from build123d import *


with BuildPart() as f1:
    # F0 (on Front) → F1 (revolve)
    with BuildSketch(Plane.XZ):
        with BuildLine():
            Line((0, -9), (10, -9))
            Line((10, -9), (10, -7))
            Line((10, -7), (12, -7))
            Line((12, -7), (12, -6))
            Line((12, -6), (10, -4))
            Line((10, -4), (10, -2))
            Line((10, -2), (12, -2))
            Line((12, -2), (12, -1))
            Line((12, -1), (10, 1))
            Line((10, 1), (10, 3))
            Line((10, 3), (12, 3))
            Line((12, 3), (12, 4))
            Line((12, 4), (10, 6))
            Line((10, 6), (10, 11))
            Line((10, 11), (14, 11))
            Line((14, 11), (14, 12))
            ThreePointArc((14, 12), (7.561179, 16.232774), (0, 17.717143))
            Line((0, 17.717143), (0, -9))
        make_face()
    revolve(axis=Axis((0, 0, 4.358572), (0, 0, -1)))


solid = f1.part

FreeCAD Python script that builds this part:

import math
import FreeCAD as App
import Part
import Sketcher
Q = App.Units.Quantity

doc = App.newDocument("Part")
body = doc.addObject("PartDesign::Body", "Body")

sketch1 = body.newObject("Sketcher::SketchObject", "Sketch")
sketch1.AttachmentSupport = (doc.getObject("XZ_Plane"), [""])
sketch1.MapMode = "FlatFace"
sketch1.addGeometry(Part.LineSegment(App.Vector(0, -9, 0), App.Vector(10, -9, 0)), False)
sketch1.addGeometry(Part.LineSegment(App.Vector(10, -9, 0), App.Vector(10, -7, 0)), False)
sketch1.addGeometry(Part.LineSegment(App.Vector(10, -7, 0), App.Vector(12, -7, 0)), False)
sketch1.addGeometry(Part.LineSegment(App.Vector(12, -7, 0), App.Vector(12, -6, 0)), False)
sketch1.addGeometry(Part.LineSegment(App.Vector(12, -6, 0), App.Vector(10, -4, 0)), False)
sketch1.addGeometry(Part.LineSegment(App.Vector(10, -4, 0), App.Vector(10, -2, 0)), False)
sketch1.addGeometry(Part.LineSegment(App.Vector(10, -2, 0), App.Vector(12, -2, 0)), False)
sketch1.addGeometry(Part.LineSegment(App.Vector(12, -2, 0), App.Vector(12, -1, 0)), False)
sketch1.addGeometry(Part.LineSegment(App.Vector(12, -1, 0), App.Vector(10, 1, 0)), False)
sketch1.addGeometry(Part.LineSegment(App.Vector(10, 1, 0), App.Vector(10, 3, 0)), False)
sketch1.addGeometry(Part.LineSegment(App.Vector(10, 3, 0), App.Vector(12, 3, 0)), False)
sketch1.addGeometry(Part.LineSegment(App.Vector(12, 3, 0), App.Vector(12, 4, 0)), False)
sketch1.addGeometry(Part.LineSegment(App.Vector(12, 4, 0), App.Vector(10, 6, 0)), False)
sketch1.addGeometry(Part.LineSegment(App.Vector(10, 6, 0), App.Vector(10, 11, 0)), False)
sketch1.addGeometry(Part.LineSegment(App.Vector(10, 11, 0), App.Vector(14, 11, 0)), False)
sketch1.addGeometry(Part.LineSegment(App.Vector(14, 11, 0), App.Vector(14, 12, 0)), False)
sketch1.addGeometry(Part.ArcOfCircle(Part.Circle(App.Vector(0.000002, -2.282852, 0), App.Vector(0, 0, 1), 19.999995), math.radians(45.57299), math.radians(90.000007)), False)
sketch1.addGeometry(Part.LineSegment(App.Vector(0, 17.717143, 0), App.Vector(0, -9, 0)), False)
sketch1.addConstraint(Sketcher.Constraint("Coincident", 0, 2, 1, 1))
sketch1.addConstraint(Sketcher.Constraint("Coincident", 1, 2, 2, 1))
sketch1.addConstraint(Sketcher.Constraint("Coincident", 2, 2, 3, 1))
sketch1.addConstraint(Sketcher.Constraint("Coincident", 3, 2, 4, 1))
sketch1.addConstraint(Sketcher.Constraint("Coincident", 4, 2, 5, 1))
sketch1.addConstraint(Sketcher.Constraint("Coincident", 5, 2, 6, 1))
sketch1.addConstraint(Sketcher.Constraint("Coincident", 6, 2, 7, 1))
sketch1.addConstraint(Sketcher.Constraint("Coincident", 7, 2, 8, 1))
sketch1.addConstraint(Sketcher.Constraint("Coincident", 8, 2, 9, 1))
sketch1.addConstraint(Sketcher.Constraint("Coincident", 9, 2, 10, 1))
sketch1.addConstraint(Sketcher.Constraint("Coincident", 10, 2, 11, 1))
sketch1.addConstraint(Sketcher.Constraint("Coincident", 11, 2, 12, 1))
sketch1.addConstraint(Sketcher.Constraint("Coincident", 12, 2, 13, 1))
sketch1.addConstraint(Sketcher.Constraint("Coincident", 13, 2, 14, 1))
sketch1.addConstraint(Sketcher.Constraint("Coincident", 14, 2, 15, 1))
sketch1.addConstraint(Sketcher.Constraint("Coincident", 15, 2, 16, 1))
sketch1.addConstraint(Sketcher.Constraint("Coincident", 16, 2, 17, 1))
sketch1.addConstraint(Sketcher.Constraint("Coincident", 17, 2, 0, 1))
sketch1.addConstraint(Sketcher.Constraint("Horizontal", 0))
sketch1.addConstraint(Sketcher.Constraint("Vertical", 1))
sketch1.addConstraint(Sketcher.Constraint("Horizontal", 2))
sketch1.addConstraint(Sketcher.Constraint("Vertical", 3))
sketch1.addConstraint(Sketcher.Constraint("Vertical", 5))
sketch1.addConstraint(Sketcher.Constraint("Horizontal", 6))
sketch1.addConstraint(Sketcher.Constraint("Vertical", 7))
sketch1.addConstraint(Sketcher.Constraint("Vertical", 9))
sketch1.addConstraint(Sketcher.Constraint("Horizontal", 10))
sketch1.addConstraint(Sketcher.Constraint("Vertical", 11))
sketch1.addConstraint(Sketcher.Constraint("Vertical", 13))
sketch1.addConstraint(Sketcher.Constraint("Horizontal", 14))
sketch1.addConstraint(Sketcher.Constraint("Vertical", 15))
sketch1.addConstraint(Sketcher.Constraint("Vertical", 17))
sketch1.addConstraint(Sketcher.Constraint("PointOnObject", 16, 2, -2))
sketch1.addConstraint(Sketcher.Constraint("Parallel", 4, 8))
sketch1.addConstraint(Sketcher.Constraint("Parallel", 8, 12))
sketch1.addConstraint(Sketcher.Constraint("Vertical", 1, 2, 4, 2))
sketch1.addConstraint(Sketcher.Constraint("Vertical", 3, 2, 6, 2))
sketch1.addConstraint(Sketcher.Constraint("Vertical", 5, 2, 8, 2))
sketch1.addConstraint(Sketcher.Constraint("Vertical", 7, 2, 10, 2))
sketch1.addConstraint(Sketcher.Constraint("Vertical", 9, 2, 12, 2))
sketch1.addConstraint(Sketcher.Constraint("Equal", 10, 1))
sketch1.addConstraint(Sketcher.Constraint("Equal", 1, 5))
sketch1.addConstraint(Sketcher.Constraint("Equal", 3, 7))
sketch1.addConstraint(Sketcher.Constraint("Equal", 5, 9))
sketch1.addConstraint(Sketcher.Constraint("Equal", 7, 11))
sketch1.addConstraint(Sketcher.Constraint("Equal", 11, 15))
sketch1.addConstraint(Sketcher.Constraint("DistanceX", 0, 1, 0, 2, 10.0))
sketch1.addConstraint(Sketcher.Constraint("DistanceX", 2, 1, 2, 2, 2.0))
sketch1.addConstraint(Sketcher.Constraint("DistanceX", 14, 1, 14, 2, 4.0))
sketch1.addConstraint(Sketcher.Constraint("DistanceY", 3, 1, 3, 2, 1.0))
sketch1.addConstraint(Sketcher.Constraint("DistanceY", 13, 1, 13, 2, 5.0))
sketch1.addConstraint(Sketcher.Constraint("Angle", 4, Q("135 deg")))
sketch1.addConstraint(Sketcher.Constraint("DistanceY", 0, 2, -1, 1, 9.0))
sketch1.addConstraint(Sketcher.Constraint("Radius", 16, 19.999995))
sketch1.addConstraint(Sketcher.Constraint("DistanceY", 17, 2, 17, 1, 26.717143))
revolution = body.newObject("PartDesign::Revolution", "Revolution")
revolution.Profile = sketch1
revolution.ReferenceAxis = (sketch1, ["V_Axis"])
revolution.Angle = 360

doc.recompute()
